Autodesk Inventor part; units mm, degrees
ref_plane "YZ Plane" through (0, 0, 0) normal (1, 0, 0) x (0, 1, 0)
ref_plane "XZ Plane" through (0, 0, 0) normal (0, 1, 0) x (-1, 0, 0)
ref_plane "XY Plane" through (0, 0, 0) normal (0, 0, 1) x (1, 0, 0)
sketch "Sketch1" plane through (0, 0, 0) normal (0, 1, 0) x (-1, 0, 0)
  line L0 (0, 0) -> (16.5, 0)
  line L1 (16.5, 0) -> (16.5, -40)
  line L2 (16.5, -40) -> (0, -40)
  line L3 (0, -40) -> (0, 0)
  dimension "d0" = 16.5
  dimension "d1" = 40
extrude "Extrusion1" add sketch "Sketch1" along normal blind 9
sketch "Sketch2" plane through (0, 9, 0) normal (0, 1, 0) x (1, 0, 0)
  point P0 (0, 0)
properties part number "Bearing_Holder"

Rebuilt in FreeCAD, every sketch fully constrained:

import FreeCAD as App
import Part
import Sketcher


def add_polygon(sketch, points):
    """Adds a closed chain of lines whose ends are joined by coincident constraints."""
    first, n = sketch.GeometryCount, len(points)
    for a, b in zip(points, points[1:] + points[:1]):
        sketch.addGeometry(Part.LineSegment(App.Vector(*a, 0), App.Vector(*b, 0)), False)
    for i in range(n):
        sketch.addConstraint(Sketcher.Constraint("Coincident", first + i, 2, first + (i + 1) % n, 1))

doc = App.newDocument("Part")
body = doc.addObject("PartDesign::Body", "Body")

# Sketch on XZ plane
sketch1 = body.newObject("Sketcher::SketchObject", "Sketch")
sketch1.AttachmentSupport = (doc.getObject("XZ_Plane"), [""])
sketch1.MapMode = "FlatFace"
add_polygon(sketch1, [(-16, 0), (0, 0), (0, -40), (-16, -40)])  # lines 0-3
sketch1.addConstraint([
    Sketcher.Constraint("Horizontal", 0),
    Sketcher.Constraint("Vertical", 1),
    Sketcher.Constraint("Horizontal", 2),
    Sketcher.Constraint("Vertical", 3),
    Sketcher.Constraint("Coincident", 0, 2, -1, 1),
    Sketcher.Constraint("DistanceY", 1, 2, 1, 1, 40.0),
    Sketcher.Constraint("DistanceX", 0, 1, 0, 2, 16.5),
])
pad1 = body.newObject("PartDesign::Pad", "Pad")
pad1.Profile = sketch1
pad1.Length = 9
pad1.Reversed = True

doc.recompute()
